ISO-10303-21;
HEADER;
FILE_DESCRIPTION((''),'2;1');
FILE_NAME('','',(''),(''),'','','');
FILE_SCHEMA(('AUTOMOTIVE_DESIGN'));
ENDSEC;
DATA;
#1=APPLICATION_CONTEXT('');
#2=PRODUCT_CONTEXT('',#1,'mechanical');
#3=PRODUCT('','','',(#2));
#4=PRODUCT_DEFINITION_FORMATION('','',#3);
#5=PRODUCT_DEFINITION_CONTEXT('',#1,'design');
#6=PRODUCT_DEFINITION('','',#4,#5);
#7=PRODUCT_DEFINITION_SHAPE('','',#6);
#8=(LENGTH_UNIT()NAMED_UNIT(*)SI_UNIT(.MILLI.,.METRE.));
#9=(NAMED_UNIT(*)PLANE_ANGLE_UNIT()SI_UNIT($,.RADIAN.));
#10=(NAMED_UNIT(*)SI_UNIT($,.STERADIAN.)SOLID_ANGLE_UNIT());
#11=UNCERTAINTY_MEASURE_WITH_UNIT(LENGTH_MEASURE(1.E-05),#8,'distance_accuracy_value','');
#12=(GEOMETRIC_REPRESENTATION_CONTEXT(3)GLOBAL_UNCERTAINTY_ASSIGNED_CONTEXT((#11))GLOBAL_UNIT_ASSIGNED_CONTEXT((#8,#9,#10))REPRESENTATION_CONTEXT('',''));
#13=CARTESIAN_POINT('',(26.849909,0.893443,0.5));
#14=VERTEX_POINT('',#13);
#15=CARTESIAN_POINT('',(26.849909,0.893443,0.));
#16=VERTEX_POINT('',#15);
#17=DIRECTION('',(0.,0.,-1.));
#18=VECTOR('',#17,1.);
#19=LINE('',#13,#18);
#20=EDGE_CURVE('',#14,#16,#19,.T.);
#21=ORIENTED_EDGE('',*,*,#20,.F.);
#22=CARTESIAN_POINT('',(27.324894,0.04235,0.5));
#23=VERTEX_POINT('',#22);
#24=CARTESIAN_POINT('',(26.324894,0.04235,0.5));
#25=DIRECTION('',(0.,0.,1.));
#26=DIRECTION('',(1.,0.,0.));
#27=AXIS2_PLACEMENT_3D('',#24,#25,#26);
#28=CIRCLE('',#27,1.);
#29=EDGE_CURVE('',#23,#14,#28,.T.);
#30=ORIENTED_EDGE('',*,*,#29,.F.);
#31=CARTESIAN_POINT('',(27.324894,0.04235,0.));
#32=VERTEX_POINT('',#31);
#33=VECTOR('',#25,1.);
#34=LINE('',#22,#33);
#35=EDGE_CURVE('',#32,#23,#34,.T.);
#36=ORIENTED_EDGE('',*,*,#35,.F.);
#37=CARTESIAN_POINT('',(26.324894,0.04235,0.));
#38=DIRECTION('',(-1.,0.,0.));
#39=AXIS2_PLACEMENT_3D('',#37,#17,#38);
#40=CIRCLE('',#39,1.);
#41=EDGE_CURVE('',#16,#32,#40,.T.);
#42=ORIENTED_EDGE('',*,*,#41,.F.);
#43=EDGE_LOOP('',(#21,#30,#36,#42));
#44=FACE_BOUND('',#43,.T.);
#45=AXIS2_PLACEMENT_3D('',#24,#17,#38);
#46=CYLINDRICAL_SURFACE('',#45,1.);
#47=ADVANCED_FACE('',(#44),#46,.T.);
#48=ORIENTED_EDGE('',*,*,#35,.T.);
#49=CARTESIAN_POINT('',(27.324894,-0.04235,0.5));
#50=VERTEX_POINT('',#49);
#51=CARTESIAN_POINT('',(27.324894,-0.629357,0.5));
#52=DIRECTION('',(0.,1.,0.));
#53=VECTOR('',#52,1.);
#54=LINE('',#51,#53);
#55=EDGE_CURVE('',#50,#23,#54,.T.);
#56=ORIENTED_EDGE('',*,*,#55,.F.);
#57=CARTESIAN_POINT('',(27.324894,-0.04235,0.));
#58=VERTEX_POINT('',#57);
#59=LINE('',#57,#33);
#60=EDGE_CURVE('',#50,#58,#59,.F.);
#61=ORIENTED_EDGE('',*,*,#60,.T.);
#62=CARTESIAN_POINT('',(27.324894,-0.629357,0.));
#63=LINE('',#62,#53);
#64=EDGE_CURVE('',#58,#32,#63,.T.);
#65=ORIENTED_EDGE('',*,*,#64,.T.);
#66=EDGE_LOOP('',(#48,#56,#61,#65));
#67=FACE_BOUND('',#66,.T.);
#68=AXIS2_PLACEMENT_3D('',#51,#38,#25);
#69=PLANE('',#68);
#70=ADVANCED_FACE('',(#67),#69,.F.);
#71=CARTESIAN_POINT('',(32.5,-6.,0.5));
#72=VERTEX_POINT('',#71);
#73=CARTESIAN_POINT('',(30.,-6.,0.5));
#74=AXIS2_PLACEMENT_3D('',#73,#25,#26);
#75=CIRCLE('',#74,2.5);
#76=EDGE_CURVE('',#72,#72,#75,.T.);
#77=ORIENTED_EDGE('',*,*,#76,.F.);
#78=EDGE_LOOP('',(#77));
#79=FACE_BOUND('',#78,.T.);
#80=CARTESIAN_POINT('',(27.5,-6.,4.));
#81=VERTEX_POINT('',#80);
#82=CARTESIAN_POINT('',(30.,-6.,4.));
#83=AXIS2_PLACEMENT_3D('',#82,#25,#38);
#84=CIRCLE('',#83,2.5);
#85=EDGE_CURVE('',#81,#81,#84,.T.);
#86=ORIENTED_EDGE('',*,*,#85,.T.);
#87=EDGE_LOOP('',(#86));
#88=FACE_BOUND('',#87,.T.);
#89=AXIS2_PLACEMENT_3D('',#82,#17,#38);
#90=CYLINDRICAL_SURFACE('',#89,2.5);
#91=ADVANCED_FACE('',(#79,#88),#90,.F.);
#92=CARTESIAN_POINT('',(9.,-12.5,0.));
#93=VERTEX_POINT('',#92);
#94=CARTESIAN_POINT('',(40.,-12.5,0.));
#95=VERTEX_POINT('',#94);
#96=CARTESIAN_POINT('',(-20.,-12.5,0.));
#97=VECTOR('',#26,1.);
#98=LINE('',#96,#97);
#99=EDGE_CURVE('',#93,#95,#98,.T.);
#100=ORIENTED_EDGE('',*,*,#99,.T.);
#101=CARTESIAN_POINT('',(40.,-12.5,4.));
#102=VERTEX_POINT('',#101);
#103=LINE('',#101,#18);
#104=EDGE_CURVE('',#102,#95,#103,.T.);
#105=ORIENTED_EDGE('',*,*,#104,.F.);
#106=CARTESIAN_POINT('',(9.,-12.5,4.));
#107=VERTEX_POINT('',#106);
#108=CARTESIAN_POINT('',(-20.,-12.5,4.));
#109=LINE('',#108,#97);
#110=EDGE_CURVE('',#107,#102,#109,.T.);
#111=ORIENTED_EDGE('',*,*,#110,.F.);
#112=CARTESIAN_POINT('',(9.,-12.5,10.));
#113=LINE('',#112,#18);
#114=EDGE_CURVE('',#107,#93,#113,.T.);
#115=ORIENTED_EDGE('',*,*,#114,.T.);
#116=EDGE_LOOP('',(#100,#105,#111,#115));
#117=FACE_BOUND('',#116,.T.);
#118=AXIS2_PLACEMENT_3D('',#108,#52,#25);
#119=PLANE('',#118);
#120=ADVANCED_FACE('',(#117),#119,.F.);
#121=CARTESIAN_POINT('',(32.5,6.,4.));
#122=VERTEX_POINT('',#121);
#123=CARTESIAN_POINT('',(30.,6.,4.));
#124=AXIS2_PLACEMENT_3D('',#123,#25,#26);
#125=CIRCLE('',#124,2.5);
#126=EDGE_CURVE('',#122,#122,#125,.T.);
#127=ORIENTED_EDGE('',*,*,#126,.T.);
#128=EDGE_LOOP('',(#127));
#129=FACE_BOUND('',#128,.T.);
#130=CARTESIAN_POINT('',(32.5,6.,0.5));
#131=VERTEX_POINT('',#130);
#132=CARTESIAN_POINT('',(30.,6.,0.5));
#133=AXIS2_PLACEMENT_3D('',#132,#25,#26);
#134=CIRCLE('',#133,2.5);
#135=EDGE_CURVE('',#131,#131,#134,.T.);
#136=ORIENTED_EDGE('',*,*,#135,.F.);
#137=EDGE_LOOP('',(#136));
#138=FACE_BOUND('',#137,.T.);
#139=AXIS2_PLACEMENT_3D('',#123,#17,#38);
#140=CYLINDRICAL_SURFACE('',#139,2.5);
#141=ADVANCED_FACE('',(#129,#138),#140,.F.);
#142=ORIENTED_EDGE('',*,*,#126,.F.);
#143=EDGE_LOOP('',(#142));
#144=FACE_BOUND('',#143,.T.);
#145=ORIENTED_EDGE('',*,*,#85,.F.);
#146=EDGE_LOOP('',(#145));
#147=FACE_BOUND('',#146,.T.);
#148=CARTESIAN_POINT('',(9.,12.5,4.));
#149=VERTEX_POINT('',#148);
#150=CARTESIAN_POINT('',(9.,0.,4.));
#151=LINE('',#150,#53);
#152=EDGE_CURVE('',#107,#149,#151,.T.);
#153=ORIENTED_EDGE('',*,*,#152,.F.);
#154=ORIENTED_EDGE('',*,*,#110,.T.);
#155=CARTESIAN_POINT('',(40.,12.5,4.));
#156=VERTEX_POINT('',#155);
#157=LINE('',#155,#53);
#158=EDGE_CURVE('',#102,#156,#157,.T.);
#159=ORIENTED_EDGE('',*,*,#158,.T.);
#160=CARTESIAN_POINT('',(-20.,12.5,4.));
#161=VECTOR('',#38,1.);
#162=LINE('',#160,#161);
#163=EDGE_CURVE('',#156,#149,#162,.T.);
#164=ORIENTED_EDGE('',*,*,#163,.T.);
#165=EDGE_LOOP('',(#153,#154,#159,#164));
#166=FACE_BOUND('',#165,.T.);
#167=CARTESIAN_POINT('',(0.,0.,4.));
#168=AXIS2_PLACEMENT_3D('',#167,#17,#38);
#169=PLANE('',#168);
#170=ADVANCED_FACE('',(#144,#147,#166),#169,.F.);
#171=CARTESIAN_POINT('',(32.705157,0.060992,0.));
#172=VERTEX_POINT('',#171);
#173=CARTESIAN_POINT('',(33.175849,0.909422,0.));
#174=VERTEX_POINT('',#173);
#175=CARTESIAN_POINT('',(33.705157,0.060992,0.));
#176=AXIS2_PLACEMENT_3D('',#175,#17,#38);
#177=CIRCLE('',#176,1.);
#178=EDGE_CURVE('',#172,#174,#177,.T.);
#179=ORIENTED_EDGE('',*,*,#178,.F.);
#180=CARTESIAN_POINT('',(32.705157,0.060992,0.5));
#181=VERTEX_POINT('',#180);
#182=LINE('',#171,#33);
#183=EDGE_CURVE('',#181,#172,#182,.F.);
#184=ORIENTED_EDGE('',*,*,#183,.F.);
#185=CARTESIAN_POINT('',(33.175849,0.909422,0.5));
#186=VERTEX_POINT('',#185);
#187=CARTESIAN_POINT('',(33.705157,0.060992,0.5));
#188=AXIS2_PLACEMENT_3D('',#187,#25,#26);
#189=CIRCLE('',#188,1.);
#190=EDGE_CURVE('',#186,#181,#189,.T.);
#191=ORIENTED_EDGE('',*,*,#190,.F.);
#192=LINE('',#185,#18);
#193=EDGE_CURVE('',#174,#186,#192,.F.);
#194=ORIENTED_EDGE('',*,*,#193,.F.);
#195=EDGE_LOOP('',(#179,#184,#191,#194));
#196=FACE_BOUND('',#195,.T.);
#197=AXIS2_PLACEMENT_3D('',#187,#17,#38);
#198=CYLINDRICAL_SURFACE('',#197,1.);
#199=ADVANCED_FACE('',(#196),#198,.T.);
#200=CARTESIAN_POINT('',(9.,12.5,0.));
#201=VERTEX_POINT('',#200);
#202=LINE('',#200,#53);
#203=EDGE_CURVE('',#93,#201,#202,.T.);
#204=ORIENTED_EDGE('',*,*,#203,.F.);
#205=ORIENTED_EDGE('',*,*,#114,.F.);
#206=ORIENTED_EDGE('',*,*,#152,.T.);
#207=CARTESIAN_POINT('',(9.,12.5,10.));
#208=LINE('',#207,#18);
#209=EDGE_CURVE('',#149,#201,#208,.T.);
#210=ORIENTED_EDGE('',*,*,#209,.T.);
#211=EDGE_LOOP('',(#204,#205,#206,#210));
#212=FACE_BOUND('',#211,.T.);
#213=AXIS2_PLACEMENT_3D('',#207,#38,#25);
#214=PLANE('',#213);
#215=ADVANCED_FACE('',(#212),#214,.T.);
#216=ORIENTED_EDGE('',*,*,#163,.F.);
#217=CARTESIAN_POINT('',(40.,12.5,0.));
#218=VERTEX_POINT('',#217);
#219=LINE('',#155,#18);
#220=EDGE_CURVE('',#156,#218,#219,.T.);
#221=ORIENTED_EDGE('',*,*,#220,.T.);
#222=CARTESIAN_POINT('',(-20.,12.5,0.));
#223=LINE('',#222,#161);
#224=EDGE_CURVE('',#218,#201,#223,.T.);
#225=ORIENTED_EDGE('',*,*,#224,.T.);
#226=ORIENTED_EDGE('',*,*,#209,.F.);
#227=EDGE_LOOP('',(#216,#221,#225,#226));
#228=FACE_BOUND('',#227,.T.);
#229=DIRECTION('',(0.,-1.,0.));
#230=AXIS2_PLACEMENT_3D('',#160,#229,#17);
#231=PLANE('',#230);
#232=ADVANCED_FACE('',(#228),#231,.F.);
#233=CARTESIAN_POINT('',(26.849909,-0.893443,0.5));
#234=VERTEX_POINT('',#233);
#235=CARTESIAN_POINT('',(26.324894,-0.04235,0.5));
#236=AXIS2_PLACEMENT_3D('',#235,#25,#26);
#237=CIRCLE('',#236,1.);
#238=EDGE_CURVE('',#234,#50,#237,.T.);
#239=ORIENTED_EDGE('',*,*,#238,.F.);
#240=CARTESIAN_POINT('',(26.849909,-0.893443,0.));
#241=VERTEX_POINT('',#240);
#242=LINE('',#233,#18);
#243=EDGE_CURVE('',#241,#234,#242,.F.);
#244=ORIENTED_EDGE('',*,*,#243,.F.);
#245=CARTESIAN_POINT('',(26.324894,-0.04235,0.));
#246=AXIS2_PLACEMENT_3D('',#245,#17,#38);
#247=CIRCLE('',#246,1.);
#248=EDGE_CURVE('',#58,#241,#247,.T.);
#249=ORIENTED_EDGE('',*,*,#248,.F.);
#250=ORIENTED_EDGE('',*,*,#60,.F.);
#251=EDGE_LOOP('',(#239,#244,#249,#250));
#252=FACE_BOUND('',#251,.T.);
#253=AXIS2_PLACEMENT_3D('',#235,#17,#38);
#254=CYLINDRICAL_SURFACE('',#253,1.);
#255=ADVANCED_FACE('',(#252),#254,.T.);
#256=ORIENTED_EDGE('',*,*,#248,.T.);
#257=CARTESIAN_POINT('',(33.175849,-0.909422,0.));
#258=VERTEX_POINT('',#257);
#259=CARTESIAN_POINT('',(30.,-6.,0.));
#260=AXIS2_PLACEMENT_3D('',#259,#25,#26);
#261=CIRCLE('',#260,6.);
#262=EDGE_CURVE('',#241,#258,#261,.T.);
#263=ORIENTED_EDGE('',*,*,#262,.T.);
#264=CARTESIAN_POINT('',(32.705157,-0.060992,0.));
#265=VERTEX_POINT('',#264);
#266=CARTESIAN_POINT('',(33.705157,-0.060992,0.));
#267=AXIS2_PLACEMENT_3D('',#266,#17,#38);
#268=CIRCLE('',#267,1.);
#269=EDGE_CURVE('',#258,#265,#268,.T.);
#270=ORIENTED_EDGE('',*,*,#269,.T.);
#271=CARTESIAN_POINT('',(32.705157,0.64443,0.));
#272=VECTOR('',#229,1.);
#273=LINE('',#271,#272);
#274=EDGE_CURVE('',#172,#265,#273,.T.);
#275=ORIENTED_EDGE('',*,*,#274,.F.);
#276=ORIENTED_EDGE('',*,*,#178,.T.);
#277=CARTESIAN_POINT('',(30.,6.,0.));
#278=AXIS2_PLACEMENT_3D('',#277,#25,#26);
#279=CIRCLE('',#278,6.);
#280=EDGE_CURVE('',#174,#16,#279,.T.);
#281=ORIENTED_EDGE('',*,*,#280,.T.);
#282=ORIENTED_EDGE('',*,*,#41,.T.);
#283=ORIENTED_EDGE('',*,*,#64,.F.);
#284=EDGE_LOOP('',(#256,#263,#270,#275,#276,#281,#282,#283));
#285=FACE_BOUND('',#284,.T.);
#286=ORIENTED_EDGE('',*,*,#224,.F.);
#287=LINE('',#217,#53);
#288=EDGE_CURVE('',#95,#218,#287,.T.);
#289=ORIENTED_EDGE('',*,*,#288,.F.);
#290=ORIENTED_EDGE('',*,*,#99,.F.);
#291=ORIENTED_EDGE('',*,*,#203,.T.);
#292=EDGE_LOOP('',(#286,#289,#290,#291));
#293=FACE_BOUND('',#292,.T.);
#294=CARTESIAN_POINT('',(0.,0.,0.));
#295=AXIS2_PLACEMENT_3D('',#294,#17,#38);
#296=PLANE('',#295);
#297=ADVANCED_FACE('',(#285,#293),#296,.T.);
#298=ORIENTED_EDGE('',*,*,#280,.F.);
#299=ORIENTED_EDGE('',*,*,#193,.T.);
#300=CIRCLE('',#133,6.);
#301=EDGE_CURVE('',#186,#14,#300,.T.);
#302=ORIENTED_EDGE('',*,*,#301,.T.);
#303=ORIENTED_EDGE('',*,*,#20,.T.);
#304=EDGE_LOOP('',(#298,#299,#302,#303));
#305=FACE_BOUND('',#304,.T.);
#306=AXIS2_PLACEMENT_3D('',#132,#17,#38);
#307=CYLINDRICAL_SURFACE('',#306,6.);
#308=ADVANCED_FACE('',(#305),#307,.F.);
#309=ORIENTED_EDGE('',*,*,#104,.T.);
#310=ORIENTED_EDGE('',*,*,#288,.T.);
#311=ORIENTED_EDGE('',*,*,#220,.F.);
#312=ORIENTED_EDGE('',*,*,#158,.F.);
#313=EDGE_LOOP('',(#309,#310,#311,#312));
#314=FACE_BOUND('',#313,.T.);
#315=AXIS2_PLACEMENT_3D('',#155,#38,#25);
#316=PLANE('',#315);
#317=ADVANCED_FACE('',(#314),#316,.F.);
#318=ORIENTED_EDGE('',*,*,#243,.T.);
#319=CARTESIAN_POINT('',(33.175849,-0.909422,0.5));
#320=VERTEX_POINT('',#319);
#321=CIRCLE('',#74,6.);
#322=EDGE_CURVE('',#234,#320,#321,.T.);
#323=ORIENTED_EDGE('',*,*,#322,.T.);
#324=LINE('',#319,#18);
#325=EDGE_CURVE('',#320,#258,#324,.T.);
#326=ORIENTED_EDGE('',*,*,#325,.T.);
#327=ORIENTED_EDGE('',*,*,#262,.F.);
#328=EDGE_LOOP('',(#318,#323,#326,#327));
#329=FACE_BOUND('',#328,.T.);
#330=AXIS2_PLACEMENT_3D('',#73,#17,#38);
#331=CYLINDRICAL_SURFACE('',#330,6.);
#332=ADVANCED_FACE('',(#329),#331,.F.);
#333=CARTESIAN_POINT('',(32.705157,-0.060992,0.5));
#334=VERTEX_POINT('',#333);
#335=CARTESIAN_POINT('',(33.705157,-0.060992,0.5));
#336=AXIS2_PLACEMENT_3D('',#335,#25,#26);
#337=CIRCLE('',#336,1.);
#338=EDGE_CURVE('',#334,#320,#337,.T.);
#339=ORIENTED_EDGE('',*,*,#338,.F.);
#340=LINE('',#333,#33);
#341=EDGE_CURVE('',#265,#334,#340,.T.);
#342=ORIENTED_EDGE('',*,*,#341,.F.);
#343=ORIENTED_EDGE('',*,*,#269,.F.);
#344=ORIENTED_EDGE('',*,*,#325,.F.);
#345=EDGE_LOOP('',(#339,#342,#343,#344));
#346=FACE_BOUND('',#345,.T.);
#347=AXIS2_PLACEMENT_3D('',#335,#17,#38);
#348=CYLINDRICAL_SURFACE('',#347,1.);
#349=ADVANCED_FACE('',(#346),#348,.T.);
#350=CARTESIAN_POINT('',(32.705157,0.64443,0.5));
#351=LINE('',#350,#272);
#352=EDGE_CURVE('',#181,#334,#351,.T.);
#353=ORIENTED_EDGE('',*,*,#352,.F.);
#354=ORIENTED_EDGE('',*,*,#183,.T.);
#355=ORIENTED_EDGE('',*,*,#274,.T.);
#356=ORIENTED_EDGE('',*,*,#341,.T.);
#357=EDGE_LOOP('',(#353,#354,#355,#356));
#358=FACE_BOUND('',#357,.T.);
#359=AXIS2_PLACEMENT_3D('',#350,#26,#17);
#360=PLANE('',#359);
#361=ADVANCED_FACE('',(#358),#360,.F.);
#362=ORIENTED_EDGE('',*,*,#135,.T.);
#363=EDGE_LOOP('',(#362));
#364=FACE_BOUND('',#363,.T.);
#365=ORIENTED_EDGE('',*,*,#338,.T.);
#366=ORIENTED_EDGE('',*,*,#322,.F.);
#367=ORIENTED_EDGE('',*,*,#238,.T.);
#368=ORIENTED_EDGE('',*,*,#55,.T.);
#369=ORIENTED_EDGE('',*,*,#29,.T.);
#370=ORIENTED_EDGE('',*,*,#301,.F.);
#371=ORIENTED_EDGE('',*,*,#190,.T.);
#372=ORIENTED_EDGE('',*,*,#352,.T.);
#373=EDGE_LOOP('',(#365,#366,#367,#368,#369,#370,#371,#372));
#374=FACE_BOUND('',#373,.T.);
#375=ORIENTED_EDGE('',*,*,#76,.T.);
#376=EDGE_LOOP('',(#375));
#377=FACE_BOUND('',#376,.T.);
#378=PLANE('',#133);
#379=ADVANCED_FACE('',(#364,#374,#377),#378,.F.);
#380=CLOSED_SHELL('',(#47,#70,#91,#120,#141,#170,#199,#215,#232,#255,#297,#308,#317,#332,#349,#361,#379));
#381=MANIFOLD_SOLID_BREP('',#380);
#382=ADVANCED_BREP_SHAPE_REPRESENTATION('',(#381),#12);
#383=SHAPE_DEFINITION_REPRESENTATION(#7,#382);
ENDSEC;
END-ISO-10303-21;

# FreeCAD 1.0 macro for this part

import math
import FreeCAD as App
import Part
import Sketcher
from FreeCAD import Vector
Q = App.Units.Quantity


def edges_at(feature, points):
    """Names of the edges that pass closest to the given points."""
    edges = feature.Shape.Edges
    near = lambda p: min(range(len(edges)), key=lambda i: edges[i].distToShape(Part.Vertex(*p))[0])
    return sorted({f"Edge{near(p) + 1}" for p in points})

doc = App.newDocument("Part")
body = doc.addObject("PartDesign::Body", "Body")

sketch1 = doc.addObject("Sketcher::SketchObject", "Sketch")
body.addObject(sketch1)
sketch1.AttachmentSupport = (doc.XY_Plane, [""])
sketch1.MapMode = "FlatFace"
sketch1.addGeometry([
    Part.LineSegment(Vector(-20, 12, 0), Vector(-20, -12, 0)),
    Part.LineSegment(Vector(-20, -12, 0), Vector(20, -12, 0)),
    Part.LineSegment(Vector(20, -12, 0), Vector(20, 12, 0)),
    Part.LineSegment(Vector(20, 12, 0), Vector(-20, 12, 0)),
], False)
sketch1.addConstraint([
    Sketcher.Constraint("Coincident", 0, 2, 1, 1),
    Sketcher.Constraint("Coincident", 1, 2, 2, 1),
    Sketcher.Constraint("Coincident", 2, 2, 3, 1),
    Sketcher.Constraint("Coincident", 3, 2, 0, 1),
    Sketcher.Constraint("Vertical", 0),
    Sketcher.Constraint("Horizontal", 1),
    Sketcher.Constraint("Vertical", 2),
    Sketcher.Constraint("Horizontal", 3),
    Sketcher.Constraint("Symmetric", 0, 2, 2, 2, -1, 1),
    Sketcher.Constraint("DistanceX", 1, 1, 1, 2, Q("40 mm")),
    Sketcher.Constraint("DistanceY", 0, 2, 0, 1, Q("25 mm")),
])
pad1 = doc.addObject("PartDesign::Pad", "Pad")
body.addObject(pad1)
pad1.Profile = sketch1
pad1.Length = 4

sketch2 = doc.addObject("Sketcher::SketchObject", "Sketch001")
body.addObject(sketch2)
sketch2.AttachmentSupport = (doc.XY_Plane, [""])
sketch2.MapMode = "FlatFace"
sketch2.addGeometry([
    Part.LineSegment(Vector(-20, 12, 0), Vector(-20, -12, 0)),
    Part.LineSegment(Vector(-20, -12, 0), Vector(-11, -12, 0)),
    Part.LineSegment(Vector(-11, -12, 0), Vector(-11, 12, 0)),
    Part.LineSegment(Vector(-11, 12, 0), Vector(-20, 12, 0)),
], False)
sketch2.addConstraint([
    Sketcher.Constraint("Coincident", 0, 2, 1, 1),
    Sketcher.Constraint("Coincident", 1, 2, 2, 1),
    Sketcher.Constraint("Coincident", 2, 2, 3, 1),
    Sketcher.Constraint("Coincident", 3, 2, 0, 1),
    Sketcher.Constraint("Vertical", 0),
    Sketcher.Constraint("Horizontal", 1),
    Sketcher.Constraint("Vertical", 2),
    Sketcher.Constraint("Horizontal", 3),
    Sketcher.Constraint("DistanceX", 1, 1, 1, 2, Q("9 mm")),
    Sketcher.Constraint("DistanceY", 0, 2, 0, 1, Q("25 mm")),
    Sketcher.Constraint("DistanceX", 0, 2, -1, 1, Q("20 mm")),
    Sketcher.Constraint("DistanceY", 0, 2, -1, 1, Q("12.5 mm")),
])
pocket1 = doc.addObject("PartDesign::Pocket", "Pocket")
body.addObject(pocket1)
pocket1.Profile = sketch2
pocket1.Length = 21
pocket1.Reversed = True

sketch3 = doc.addObject("Sketcher::SketchObject", "Sketch002")
body.addObject(sketch3)
sketch3.AttachmentSupport = (doc.XY_Plane, [""])
sketch3.MapMode = "FlatFace"
sketch3.addGeometry([
    Part.LineSegment(Vector(20, 12, 0), Vector(20, -12, 0)),
    Part.LineSegment(Vector(20, -12, 0), Vector(40, -12, 0)),
    Part.LineSegment(Vector(40, -12, 0), Vector(40, 12, 0)),
    Part.LineSegment(Vector(40, 12, 0), Vector(20, 12, 0)),
], False)
sketch3.addConstraint([
    Sketcher.Constraint("Coincident", 0, 2, 1, 1),
    Sketcher.Constraint("Coincident", 1, 2, 2, 1),
    Sketcher.Constraint("Coincident", 2, 2, 3, 1),
    Sketcher.Constraint("Coincident", 3, 2, 0, 1),
    Sketcher.Constraint("Vertical", 0),
    Sketcher.Constraint("Horizontal", 1),
    Sketcher.Constraint("Vertical", 2),
    Sketcher.Constraint("Horizontal", 3),
    Sketcher.Constraint("DistanceX", 1, 1, 1, 2, Q("20 mm")),
    Sketcher.Constraint("DistanceY", 0, 2, 0, 1, Q("25 mm")),
    Sketcher.Constraint("DistanceX", -1, 1, 0, 2, Q("20 mm")),
    Sketcher.Constraint("DistanceY", 0, 2, -1, 1, Q("12.5 mm")),
])
pad2 = doc.addObject("PartDesign::Pad", "Pad001")
body.addObject(pad2)
pad2.Profile = sketch3
pad2.Length = 4

sketch4 = doc.addObject("Sketcher::SketchObject", "Sketch003")
body.addObject(sketch4)
sketch4.AttachmentSupport = (doc.XY_Plane, [""])
sketch4.MapMode = "FlatFace"
sketch4.addGeometry([
    Part.Circle(Vector(30, 6, 0), Vector(0, 0, 1), 2.5),
    Part.Circle(Vector(30, -6, 0), Vector(0, 0, 1), 2.5),
], False)
sketch4.addConstraint([
    Sketcher.Constraint("Equal", 0, 1),
    Sketcher.Constraint("Symmetric", 0, 3, 1, 3, -1),
    Sketcher.Constraint("Diameter", 0, Q("5 mm")),
    Sketcher.Constraint("DistanceX", -1, 1, 0, 3, Q("30 mm")),
    Sketcher.Constraint("DistanceY", -1, 1, 0, 3, Q("6 mm")),
])
pocket2 = doc.addObject("PartDesign::Pocket", "Pocket001")
body.addObject(pocket2)
pocket2.Profile = sketch4
pocket2.Type = "ThroughAll"
pocket2.Midplane = True

sketch5 = doc.addObject("Sketcher::SketchObject", "Sketch004")
body.addObject(sketch5)
sketch5.AttachmentSupport = (doc.XY_Plane, [""])
sketch5.MapMode = "FlatFace"
sketch5.addGeometry([
    Part.LineSegment(Vector(32.7, -0.6, 0), Vector(32.7, 0.6, 0)),
    Part.ArcOfCircle(Part.Circle(Vector(30, 6, 0), Vector(0, 0, 1), 6), math.radians(-63), math.radians(244)),
    Part.LineSegment(Vector(27.3, 0.6, 0), Vector(27.3, -0.6, 0)),
    Part.ArcOfCircle(Part.Circle(Vector(30, -6, 0), Vector(0, 0, 1), 6), math.radians(116), math.radians(423)),
], False)
sketch5.addConstraint([
    Sketcher.Constraint("Coincident", 0, 2, 1, 1),
    Sketcher.Constraint("Coincident", 1, 2, 2, 1),
    Sketcher.Constraint("Coincident", 2, 2, 3, 1),
    Sketcher.Constraint("Coincident", 3, 2, 0, 1),
    Sketcher.Constraint("Vertical", 0),
    Sketcher.Constraint("Vertical", 2),
    Sketcher.Constraint("Equal", 1, 3),
    Sketcher.Constraint("Symmetric", 1, 3, 3, 3, -1),
    Sketcher.Constraint("Radius", 1, Q("6 mm")),
    Sketcher.Constraint("DistanceX", -1, 1, 1, 3, Q("30 mm")),
    Sketcher.Constraint("DistanceY", -1, 1, 1, 3, Q("6 mm")),
    Sketcher.Constraint("DistanceY", 0, 1, 0, 2, Q("1.288861 mm")),
    Sketcher.Constraint("DistanceY", 2, 2, 2, 1, Q("1.258714 mm")),
])
pocket3 = doc.addObject("PartDesign::Pocket", "Pocket002")
body.addObject(pocket3)
pocket3.Profile = sketch5
pocket3.Length = 0.5
pocket3.Reversed = True
doc.recompute()

fillet = doc.addObject("PartDesign::Fillet", "Fillet")
body.addObject(fillet)
fillet.Base = (pocket3, edges_at(pocket3, [
    (27.325, 0.629, 0.25),
    (27.325, -0.629, 0.25),
    (32.705, -0.644, 0.25),
    (32.705, 0.644, 0.25),
]))
fillet.Radius = 1

sketch6 = doc.addObject("Sketcher::SketchObject", "Sketch005")
body.addObject(sketch6)
sketch6.AttachmentSupport = (doc.XY_Plane, [""])
sketch6.MapMode = "FlatFace"
sketch6.addGeometry([
    Part.LineSegment(Vector(-11, 12, 0), Vector(-11, -12, 0)),
    Part.LineSegment(Vector(-11, -12, 0), Vector(9, -12, 0)),
    Part.LineSegment(Vector(9, -12, 0), Vector(9, 12, 0)),
    Part.LineSegment(Vector(9, 12, 0), Vector(-11, 12, 0)),
], False)
sketch6.addConstraint([
    Sketcher.Constraint("Coincident", 0, 2, 1, 1),
    Sketcher.Constraint("Coincident", 1, 2, 2, 1),
    Sketcher.Constraint("Coincident", 2, 2, 3, 1),
    Sketcher.Constraint("Coincident", 3, 2, 0, 1),
    Sketcher.Constraint("Vertical", 0),
    Sketcher.Constraint("Horizontal", 1),
    Sketcher.Constraint("Vertical", 2),
    Sketcher.Constraint("Horizontal", 3),
    Sketcher.Constraint("DistanceX", 1, 1, 1, 2, Q("20 mm")),
    Sketcher.Constraint("DistanceY", 0, 2, 0, 1, Q("25 mm")),
    Sketcher.Constraint("DistanceX", 0, 2, -1, 1, Q("11 mm")),
    Sketcher.Constraint("DistanceY", 0, 2, -1, 1, Q("12.5 mm")),
])
pocket4 = doc.addObject("PartDesign::Pocket", "Pocket003")
body.addObject(pocket4)
pocket4.Profile = sketch6
pocket4.Length = 10
pocket4.Reversed = True

doc.recompute()
